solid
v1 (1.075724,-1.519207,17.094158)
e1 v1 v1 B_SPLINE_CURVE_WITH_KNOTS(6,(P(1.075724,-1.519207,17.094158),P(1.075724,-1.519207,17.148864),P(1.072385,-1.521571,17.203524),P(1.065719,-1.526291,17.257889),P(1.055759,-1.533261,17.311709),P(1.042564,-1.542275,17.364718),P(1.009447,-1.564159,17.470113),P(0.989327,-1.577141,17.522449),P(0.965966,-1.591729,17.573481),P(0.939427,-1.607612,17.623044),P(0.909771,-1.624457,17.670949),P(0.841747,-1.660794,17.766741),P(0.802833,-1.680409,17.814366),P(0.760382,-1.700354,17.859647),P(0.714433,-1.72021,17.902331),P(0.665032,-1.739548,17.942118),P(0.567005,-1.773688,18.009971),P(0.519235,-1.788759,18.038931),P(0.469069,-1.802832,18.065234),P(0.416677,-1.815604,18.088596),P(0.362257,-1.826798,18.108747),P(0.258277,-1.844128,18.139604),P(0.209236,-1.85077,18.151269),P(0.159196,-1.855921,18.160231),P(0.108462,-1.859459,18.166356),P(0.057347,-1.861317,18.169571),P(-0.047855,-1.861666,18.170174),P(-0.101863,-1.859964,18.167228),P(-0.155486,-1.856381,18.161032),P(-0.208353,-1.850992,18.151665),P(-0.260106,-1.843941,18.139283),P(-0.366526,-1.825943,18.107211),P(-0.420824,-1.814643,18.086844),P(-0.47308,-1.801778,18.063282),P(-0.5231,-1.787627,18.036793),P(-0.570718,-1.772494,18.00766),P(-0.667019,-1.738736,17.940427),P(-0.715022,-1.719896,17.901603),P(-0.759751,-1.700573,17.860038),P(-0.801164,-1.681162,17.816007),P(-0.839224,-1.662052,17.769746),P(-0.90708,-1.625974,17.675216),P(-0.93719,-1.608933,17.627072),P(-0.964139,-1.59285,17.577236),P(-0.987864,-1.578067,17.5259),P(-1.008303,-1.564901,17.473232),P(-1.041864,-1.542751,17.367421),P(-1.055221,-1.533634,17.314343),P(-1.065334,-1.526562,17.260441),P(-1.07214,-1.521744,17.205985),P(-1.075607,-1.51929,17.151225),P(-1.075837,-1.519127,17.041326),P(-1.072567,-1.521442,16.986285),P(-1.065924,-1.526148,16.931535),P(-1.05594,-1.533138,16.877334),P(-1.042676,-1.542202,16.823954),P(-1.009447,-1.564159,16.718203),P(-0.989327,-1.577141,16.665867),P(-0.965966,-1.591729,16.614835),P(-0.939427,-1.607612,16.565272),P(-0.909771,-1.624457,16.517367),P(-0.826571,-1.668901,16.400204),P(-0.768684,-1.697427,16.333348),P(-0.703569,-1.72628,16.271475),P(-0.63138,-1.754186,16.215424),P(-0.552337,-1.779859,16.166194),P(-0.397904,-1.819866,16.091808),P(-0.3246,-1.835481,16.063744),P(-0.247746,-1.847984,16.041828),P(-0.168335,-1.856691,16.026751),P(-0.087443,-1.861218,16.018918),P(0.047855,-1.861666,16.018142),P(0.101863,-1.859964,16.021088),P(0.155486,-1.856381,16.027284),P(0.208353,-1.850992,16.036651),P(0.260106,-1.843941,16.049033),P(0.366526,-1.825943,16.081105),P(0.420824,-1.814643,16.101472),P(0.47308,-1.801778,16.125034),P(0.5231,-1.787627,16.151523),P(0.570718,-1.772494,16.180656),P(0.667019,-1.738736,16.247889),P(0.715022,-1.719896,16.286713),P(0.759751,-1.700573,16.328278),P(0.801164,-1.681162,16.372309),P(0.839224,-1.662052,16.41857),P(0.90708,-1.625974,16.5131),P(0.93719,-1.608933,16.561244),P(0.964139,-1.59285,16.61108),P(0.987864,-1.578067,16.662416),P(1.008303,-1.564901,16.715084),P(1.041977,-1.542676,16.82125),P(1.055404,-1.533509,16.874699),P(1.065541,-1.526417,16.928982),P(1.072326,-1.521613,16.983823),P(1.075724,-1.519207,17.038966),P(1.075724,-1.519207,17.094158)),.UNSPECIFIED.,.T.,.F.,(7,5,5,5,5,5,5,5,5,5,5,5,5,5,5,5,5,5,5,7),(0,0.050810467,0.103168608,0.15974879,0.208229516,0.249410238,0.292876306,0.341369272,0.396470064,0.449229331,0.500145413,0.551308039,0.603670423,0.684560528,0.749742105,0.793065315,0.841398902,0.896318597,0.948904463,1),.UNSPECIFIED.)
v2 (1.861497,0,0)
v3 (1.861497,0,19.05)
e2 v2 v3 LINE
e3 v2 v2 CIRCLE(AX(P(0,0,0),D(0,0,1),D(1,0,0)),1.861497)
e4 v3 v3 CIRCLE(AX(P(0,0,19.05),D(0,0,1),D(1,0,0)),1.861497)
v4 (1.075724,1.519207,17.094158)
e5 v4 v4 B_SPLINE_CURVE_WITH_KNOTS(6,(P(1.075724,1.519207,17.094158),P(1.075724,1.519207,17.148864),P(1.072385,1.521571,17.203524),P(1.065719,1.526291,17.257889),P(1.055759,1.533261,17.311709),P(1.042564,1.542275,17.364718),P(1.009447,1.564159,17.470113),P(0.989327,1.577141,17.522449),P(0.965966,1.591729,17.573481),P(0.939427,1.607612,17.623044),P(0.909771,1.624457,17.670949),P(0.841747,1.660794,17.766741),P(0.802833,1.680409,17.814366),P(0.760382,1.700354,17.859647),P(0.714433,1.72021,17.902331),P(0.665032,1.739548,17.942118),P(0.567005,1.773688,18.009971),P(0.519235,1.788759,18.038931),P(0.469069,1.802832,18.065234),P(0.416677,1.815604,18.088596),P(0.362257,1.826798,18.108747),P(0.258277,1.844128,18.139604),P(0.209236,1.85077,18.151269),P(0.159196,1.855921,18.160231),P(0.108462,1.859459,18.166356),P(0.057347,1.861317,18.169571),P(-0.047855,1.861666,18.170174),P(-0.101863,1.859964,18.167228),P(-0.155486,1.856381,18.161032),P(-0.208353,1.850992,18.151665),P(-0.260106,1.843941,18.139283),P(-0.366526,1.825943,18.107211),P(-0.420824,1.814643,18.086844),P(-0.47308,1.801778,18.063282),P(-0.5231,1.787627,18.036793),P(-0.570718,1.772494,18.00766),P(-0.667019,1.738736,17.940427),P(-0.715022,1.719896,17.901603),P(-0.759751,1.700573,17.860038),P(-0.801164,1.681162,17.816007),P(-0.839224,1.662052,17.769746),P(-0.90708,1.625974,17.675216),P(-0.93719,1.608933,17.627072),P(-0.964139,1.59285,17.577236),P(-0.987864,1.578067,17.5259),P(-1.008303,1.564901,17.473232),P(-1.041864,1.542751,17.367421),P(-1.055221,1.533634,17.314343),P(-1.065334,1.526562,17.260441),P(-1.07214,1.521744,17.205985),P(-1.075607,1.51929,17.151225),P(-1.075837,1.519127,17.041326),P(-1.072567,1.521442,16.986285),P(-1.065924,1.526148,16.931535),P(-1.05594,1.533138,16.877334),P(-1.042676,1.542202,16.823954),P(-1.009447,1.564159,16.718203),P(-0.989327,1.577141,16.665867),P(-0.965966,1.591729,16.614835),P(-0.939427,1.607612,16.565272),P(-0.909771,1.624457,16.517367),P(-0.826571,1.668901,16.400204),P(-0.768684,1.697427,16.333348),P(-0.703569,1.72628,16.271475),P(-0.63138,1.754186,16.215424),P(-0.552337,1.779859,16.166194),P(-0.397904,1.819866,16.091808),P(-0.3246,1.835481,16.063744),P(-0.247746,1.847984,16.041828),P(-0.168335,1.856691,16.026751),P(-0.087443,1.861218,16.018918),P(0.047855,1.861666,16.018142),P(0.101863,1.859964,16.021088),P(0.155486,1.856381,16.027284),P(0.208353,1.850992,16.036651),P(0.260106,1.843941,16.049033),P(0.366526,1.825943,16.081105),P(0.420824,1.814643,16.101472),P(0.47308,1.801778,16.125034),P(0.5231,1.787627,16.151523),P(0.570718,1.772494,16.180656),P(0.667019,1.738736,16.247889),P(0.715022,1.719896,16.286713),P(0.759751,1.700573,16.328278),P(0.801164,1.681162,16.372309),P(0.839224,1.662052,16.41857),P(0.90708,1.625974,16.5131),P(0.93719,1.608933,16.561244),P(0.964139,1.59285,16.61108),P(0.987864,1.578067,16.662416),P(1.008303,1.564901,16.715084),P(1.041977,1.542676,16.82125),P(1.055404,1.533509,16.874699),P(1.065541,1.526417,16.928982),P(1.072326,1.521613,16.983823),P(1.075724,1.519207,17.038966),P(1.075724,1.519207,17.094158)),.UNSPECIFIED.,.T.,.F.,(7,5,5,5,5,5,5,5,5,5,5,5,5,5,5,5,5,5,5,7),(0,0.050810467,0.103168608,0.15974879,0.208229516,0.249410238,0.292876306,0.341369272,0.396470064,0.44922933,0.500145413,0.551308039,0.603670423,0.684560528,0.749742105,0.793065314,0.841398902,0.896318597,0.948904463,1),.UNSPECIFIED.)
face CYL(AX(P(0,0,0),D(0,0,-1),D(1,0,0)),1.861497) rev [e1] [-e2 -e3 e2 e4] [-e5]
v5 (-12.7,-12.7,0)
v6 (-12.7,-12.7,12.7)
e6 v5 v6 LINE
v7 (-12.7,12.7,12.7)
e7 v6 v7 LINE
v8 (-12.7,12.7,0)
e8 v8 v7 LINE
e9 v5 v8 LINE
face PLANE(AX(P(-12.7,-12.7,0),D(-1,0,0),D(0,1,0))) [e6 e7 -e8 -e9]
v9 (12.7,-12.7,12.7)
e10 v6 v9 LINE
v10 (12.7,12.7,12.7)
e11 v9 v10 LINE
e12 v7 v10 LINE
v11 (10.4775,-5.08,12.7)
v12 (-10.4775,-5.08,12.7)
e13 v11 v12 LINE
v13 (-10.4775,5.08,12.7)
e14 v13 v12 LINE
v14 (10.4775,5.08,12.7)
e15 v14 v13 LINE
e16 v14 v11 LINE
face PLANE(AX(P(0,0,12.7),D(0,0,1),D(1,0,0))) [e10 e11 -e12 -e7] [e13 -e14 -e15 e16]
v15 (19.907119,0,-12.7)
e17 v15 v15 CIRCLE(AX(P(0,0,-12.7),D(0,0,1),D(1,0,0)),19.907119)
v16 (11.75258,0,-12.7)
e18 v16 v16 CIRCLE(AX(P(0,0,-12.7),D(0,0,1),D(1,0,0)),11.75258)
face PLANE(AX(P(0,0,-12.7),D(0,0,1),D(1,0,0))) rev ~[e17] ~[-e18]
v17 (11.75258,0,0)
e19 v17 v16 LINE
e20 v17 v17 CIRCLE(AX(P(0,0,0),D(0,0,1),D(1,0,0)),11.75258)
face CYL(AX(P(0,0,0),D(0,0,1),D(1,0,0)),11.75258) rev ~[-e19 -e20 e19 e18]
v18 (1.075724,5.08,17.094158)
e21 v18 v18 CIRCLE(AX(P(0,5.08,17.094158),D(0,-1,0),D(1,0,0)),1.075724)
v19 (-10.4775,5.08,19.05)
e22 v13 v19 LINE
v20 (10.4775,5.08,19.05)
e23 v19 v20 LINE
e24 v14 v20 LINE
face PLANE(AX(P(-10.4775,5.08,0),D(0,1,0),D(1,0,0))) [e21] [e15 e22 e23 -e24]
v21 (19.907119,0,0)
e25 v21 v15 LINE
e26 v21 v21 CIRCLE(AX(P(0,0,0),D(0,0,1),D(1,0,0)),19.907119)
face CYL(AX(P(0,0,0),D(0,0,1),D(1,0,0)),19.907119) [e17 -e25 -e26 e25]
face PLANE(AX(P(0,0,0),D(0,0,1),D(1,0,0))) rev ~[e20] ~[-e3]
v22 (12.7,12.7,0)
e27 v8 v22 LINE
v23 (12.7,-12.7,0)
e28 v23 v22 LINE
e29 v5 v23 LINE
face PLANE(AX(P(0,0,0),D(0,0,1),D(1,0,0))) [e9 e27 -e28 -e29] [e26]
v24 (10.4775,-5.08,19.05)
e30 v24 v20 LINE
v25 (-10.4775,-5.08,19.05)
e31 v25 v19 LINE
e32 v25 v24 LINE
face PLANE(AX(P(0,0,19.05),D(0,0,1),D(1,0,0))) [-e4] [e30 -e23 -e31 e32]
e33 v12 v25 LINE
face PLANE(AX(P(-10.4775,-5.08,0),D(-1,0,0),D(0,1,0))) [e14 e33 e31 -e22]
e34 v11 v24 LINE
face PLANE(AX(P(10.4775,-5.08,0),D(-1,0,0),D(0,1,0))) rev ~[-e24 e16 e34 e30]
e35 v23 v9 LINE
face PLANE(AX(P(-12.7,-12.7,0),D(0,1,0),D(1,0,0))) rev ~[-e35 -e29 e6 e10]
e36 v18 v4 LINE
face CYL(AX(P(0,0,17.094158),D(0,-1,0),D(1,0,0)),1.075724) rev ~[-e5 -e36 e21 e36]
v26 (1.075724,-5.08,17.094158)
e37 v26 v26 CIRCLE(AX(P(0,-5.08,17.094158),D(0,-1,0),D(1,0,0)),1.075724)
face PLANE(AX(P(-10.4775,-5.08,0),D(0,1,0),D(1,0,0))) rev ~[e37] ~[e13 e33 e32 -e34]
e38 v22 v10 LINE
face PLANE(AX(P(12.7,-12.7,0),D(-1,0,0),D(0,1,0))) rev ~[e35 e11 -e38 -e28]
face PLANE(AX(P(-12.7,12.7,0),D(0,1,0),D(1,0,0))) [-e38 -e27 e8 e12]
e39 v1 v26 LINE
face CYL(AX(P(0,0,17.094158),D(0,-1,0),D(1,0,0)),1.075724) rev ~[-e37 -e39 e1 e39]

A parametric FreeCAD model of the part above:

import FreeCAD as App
import Part
import Sketcher
Q = App.Units.Quantity

doc = App.newDocument("Part")
params = doc.addObject("Spreadsheet::Sheet", "Params")
for row, (alias, value) in enumerate([
    ("pad1_length", "0.5 in"),
    ("pocket1_length", "0.5 in"),
    ("sketch3_width", "1 in"),
    ("pad2_length", "0.5 in"),
    ("sketch4_height", "0.4 in"),
    ("sketch4_width", "0.825 in"),
    ("pad3_length", "0.75 in"),
    ("pocket2_length", "0.45 in"),
    ("pocket3_length", "0.75 in"),
], start=1):
    params.set(f"A{row}", alias)
    params.set(f"B{row}", "=" + value)
    params.setAlias(f"B{row}", alias)

body = doc.addObject("PartDesign::Body", "Body")

sketch1 = doc.addObject("Sketcher::SketchObject", "Sketch")
body.addObject(sketch1)
sketch1.AttachmentSupport = (doc.XY_Plane, [""])
sketch1.MapMode = "FlatFace"
sketch1.addGeometry(Part.Circle(App.Vector(0, 0, 0), App.Vector(0, 0, 1), 19.907119), False)
sketch1.addConstraint(Sketcher.Constraint("Coincident", 0, 3, -1, 1))
sketch1.addConstraint(Sketcher.Constraint("Diameter", 0, Q("39.814238 mm")))
pad1 = doc.addObject("PartDesign::Pad", "Pad")
body.addObject(pad1)
pad1.Profile = sketch1
pad1.setExpression("Length", "Params.pad1_length")
pad1.Reversed = True

sketch2 = doc.addObject("Sketcher::SketchObject", "Sketch001")
body.addObject(sketch2)
sketch2.AttachmentSupport = (doc.XY_Plane, [""])
sketch2.MapMode = "FlatFace"
sketch2.addGeometry(Part.Circle(App.Vector(0, 0, 0), App.Vector(0, 0, 1), 11.75258), False)
sketch2.addConstraint(Sketcher.Constraint("Coincident", 0, 3, -1, 1))
sketch2.addConstraint(Sketcher.Constraint("Diameter", 0, Q("0.9254 in")))
pocket1 = doc.addObject("PartDesign::Pocket", "Pocket")
body.addObject(pocket1)
pocket1.Profile = sketch2
pocket1.setExpression("Length", "Params.pocket1_length")

sketch3 = doc.addObject("Sketcher::SketchObject", "Sketch002")
body.addObject(sketch3)
sketch3.AttachmentSupport = (doc.XY_Plane, [""])
sketch3.MapMode = "FlatFace"
sketch3.addGeometry(Part.LineSegment(App.Vector(-12.7, 12.7, 0), App.Vector(-12.7, -12.7, 0)), False)
sketch3.addGeometry(Part.LineSegment(App.Vector(-12.7, -12.7, 0), App.Vector(12.7, -12.7, 0)), False)
sketch3.addGeometry(Part.LineSegment(App.Vector(12.7, -12.7, 0), App.Vector(12.7, 12.7, 0)), False)
sketch3.addGeometry(Part.LineSegment(App.Vector(12.7, 12.7, 0), App.Vector(-12.7, 12.7, 0)), False)
sketch3.addConstraint(Sketcher.Constraint("Coincident", 0, 2, 1, 1))
sketch3.addConstraint(Sketcher.Constraint("Coincident", 1, 2, 2, 1))
sketch3.addConstraint(Sketcher.Constraint("Coincident", 2, 2, 3, 1))
sketch3.addConstraint(Sketcher.Constraint("Coincident", 3, 2, 0, 1))
sketch3.addConstraint(Sketcher.Constraint("Vertical", 0))
sketch3.addConstraint(Sketcher.Constraint("Horizontal", 1))
sketch3.addConstraint(Sketcher.Constraint("Vertical", 2))
sketch3.addConstraint(Sketcher.Constraint("Horizontal", 3))
sketch3.addConstraint(Sketcher.Constraint("Symmetric", 0, 2, 2, 2, -1, 1))
sketch3.addConstraint(Sketcher.Constraint("Equal", 3, 0))
sketch3.addConstraint(Sketcher.Constraint("DistanceX", 1, 1, 1, 2, Q("1 in")))
sketch3.setExpression("Constraints[10]", "Params.sketch3_width")
pad2 = doc.addObject("PartDesign::Pad", "Pad001")
body.addObject(pad2)
pad2.Profile = sketch3
pad2.setExpression("Length", "Params.pad2_length")

sketch4 = doc.addObject("Sketcher::SketchObject", "Sketch003")
body.addObject(sketch4)
sketch4.AttachmentSupport = (doc.XY_Plane, [""])
sketch4.MapMode = "FlatFace"
sketch4.addGeometry(Part.LineSegment(App.Vector(-10.4775, 5.08, 0), App.Vector(-10.4775, -5.08, 0)), False)
sketch4.addGeometry(Part.LineSegment(App.Vector(-10.4775, -5.08, 0), App.Vector(10.4775, -5.08, 0)), False)
sketch4.addGeometry(Part.LineSegment(App.Vector(10.4775, -5.08, 0), App.Vector(10.4775, 5.08, 0)), False)
sketch4.addGeometry(Part.LineSegment(App.Vector(10.4775, 5.08, 0), App.Vector(-10.4775, 5.08, 0)), False)
sketch4.addConstraint(Sketcher.Constraint("Coincident", 0, 2, 1, 1))
sketch4.addConstraint(Sketcher.Constraint("Coincident", 1, 2, 2, 1))
sketch4.addConstraint(Sketcher.Constraint("Coincident", 2, 2, 3, 1))
sketch4.addConstraint(Sketcher.Constraint("Coincident", 3, 2, 0, 1))
sketch4.addConstraint(Sketcher.Constraint("Vertical", 0))
sketch4.addConstraint(Sketcher.Constraint("Horizontal", 1))
sketch4.addConstraint(Sketcher.Constraint("Vertical", 2))
sketch4.addConstraint(Sketcher.Constraint("Horizontal", 3))
sketch4.addConstraint(Sketcher.Constraint("Symmetric", 0, 2, 2, 2, -1, 1))
sketch4.addConstraint(Sketcher.Constraint("DistanceY", 0, 2, 0, 1, Q("0.4 in")))
sketch4.addConstraint(Sketcher.Constraint("DistanceX", 1, 1, 1, 2, Q("0.825 in")))
sketch4.setExpression("Constraints[9]", "Params.sketch4_height")
sketch4.setExpression("Constraints[10]", "Params.sketch4_width")
pad3 = doc.addObject("PartDesign::Pad", "Pad002")
body.addObject(pad3)
pad3.Profile = sketch4
pad3.setExpression("Length", "Params.pad3_length")

sketch5 = doc.addObject("Sketcher::SketchObject", "Sketch004")
body.addObject(sketch5)
sketch5.AttachmentSupport = (doc.XZ_Plane, [""])
sketch5.MapMode = "FlatFace"
sketch5.addGeometry(Part.Circle(App.Vector(0, 17.094158, 0), App.Vector(0, 0, 1), 1.075724), False)
sketch5.addConstraint(Sketcher.Constraint("PointOnObject", 0, 3, -2))
sketch5.addConstraint(Sketcher.Constraint("Diameter", 0, Q("2.151448 mm")))
sketch5.addConstraint(Sketcher.Constraint("DistanceY", -1, 1, 0, 3, Q("17.094158 mm")))
pocket2 = doc.addObject("PartDesign::Pocket", "Pocket001")
body.addObject(pocket2)
pocket2.Profile = sketch5
pocket2.setExpression("Length", "Params.pocket2_length")
pocket2.Midplane = True

sketch6 = doc.addObject("Sketcher::SketchObject", "Sketch005")
body.addObject(sketch6)
sketch6.AttachmentSupport = (doc.XY_Plane, [""])
sketch6.MapMode = "FlatFace"
sketch6.addGeometry(Part.Circle(App.Vector(0, 0, 0), App.Vector(0, 0, 1), 1.861497), False)
sketch6.addConstraint(Sketcher.Constraint("Coincident", 0, 3, -1, 1))
sketch6.addConstraint(Sketcher.Constraint("Diameter", 0, Q("3.722994 mm")))
pocket3 = doc.addObject("PartDesign::Pocket", "Pocket002")
body.addObject(pocket3)
pocket3.Profile = sketch6
pocket3.setExpression("Length", "Params.pocket3_length")
pocket3.Reversed = True

doc.recompute()
